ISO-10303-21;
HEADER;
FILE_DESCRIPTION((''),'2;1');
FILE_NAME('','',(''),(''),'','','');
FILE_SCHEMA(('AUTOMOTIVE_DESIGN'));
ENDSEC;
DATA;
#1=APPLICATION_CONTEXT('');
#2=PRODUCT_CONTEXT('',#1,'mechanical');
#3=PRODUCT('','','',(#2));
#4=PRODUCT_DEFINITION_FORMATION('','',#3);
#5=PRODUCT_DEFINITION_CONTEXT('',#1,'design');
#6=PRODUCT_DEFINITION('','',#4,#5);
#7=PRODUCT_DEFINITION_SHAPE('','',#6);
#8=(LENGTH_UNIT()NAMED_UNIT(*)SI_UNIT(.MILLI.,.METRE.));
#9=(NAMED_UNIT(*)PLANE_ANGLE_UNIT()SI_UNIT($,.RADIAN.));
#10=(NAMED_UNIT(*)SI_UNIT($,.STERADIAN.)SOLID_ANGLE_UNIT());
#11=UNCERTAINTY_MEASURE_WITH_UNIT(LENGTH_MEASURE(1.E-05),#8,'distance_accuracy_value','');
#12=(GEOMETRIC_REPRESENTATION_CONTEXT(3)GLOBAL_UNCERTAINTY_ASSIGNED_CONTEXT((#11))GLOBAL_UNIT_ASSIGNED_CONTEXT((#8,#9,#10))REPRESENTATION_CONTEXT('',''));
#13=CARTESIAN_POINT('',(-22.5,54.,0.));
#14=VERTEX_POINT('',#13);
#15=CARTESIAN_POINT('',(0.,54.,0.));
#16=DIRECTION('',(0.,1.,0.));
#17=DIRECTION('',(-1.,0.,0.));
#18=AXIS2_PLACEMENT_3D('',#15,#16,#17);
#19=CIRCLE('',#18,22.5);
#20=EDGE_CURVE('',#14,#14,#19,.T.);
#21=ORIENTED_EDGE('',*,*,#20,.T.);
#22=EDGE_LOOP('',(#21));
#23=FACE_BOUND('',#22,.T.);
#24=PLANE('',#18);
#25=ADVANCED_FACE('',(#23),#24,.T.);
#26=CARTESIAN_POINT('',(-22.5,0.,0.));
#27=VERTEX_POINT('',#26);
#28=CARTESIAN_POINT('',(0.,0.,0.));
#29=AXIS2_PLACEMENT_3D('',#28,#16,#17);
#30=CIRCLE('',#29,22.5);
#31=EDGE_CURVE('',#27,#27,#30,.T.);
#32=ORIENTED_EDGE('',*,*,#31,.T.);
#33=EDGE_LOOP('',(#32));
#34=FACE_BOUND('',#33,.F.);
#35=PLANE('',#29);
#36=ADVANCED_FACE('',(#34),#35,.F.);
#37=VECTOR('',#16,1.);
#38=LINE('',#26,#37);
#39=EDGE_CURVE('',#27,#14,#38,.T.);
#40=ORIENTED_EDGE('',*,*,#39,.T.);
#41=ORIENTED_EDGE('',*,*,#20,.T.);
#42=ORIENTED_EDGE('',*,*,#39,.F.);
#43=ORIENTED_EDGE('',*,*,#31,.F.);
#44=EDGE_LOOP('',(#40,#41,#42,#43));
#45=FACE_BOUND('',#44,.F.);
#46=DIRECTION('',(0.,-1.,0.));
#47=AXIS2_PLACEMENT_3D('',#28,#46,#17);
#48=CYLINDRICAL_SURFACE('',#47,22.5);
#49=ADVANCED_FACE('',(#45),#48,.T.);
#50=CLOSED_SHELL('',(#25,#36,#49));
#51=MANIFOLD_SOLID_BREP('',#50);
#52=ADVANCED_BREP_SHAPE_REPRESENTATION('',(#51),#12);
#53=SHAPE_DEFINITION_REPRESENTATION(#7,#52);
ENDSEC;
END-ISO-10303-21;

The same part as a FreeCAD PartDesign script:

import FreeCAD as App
import Part
import Sketcher

V = App.Vector
Q = App.Units.Quantity

doc = App.newDocument("Part")
body = doc.addObject("PartDesign::Body", "Body")

# Sketch on XZ plane
sketch1 = body.newObject("Sketcher::SketchObject", "Sketch")
sketch1.AttachmentSupport = (doc.getObject("XZ_Plane"), [""])
sketch1.MapMode = "FlatFace"
sketch1.addGeometry(Part.Circle(V(0, 0, 0), V(0, 0, 1), 22.5), False)
sketch1.addConstraint(Sketcher.Constraint("Coincident", 0, 3, -1, 1))
sketch1.addConstraint(Sketcher.Constraint("Diameter", 0, Q("45 mm")))
pad1 = body.newObject("PartDesign::Pad", "Pad")
pad1.Profile = sketch1
pad1.Length = 54
pad1.Reversed = True

doc.recompute()
